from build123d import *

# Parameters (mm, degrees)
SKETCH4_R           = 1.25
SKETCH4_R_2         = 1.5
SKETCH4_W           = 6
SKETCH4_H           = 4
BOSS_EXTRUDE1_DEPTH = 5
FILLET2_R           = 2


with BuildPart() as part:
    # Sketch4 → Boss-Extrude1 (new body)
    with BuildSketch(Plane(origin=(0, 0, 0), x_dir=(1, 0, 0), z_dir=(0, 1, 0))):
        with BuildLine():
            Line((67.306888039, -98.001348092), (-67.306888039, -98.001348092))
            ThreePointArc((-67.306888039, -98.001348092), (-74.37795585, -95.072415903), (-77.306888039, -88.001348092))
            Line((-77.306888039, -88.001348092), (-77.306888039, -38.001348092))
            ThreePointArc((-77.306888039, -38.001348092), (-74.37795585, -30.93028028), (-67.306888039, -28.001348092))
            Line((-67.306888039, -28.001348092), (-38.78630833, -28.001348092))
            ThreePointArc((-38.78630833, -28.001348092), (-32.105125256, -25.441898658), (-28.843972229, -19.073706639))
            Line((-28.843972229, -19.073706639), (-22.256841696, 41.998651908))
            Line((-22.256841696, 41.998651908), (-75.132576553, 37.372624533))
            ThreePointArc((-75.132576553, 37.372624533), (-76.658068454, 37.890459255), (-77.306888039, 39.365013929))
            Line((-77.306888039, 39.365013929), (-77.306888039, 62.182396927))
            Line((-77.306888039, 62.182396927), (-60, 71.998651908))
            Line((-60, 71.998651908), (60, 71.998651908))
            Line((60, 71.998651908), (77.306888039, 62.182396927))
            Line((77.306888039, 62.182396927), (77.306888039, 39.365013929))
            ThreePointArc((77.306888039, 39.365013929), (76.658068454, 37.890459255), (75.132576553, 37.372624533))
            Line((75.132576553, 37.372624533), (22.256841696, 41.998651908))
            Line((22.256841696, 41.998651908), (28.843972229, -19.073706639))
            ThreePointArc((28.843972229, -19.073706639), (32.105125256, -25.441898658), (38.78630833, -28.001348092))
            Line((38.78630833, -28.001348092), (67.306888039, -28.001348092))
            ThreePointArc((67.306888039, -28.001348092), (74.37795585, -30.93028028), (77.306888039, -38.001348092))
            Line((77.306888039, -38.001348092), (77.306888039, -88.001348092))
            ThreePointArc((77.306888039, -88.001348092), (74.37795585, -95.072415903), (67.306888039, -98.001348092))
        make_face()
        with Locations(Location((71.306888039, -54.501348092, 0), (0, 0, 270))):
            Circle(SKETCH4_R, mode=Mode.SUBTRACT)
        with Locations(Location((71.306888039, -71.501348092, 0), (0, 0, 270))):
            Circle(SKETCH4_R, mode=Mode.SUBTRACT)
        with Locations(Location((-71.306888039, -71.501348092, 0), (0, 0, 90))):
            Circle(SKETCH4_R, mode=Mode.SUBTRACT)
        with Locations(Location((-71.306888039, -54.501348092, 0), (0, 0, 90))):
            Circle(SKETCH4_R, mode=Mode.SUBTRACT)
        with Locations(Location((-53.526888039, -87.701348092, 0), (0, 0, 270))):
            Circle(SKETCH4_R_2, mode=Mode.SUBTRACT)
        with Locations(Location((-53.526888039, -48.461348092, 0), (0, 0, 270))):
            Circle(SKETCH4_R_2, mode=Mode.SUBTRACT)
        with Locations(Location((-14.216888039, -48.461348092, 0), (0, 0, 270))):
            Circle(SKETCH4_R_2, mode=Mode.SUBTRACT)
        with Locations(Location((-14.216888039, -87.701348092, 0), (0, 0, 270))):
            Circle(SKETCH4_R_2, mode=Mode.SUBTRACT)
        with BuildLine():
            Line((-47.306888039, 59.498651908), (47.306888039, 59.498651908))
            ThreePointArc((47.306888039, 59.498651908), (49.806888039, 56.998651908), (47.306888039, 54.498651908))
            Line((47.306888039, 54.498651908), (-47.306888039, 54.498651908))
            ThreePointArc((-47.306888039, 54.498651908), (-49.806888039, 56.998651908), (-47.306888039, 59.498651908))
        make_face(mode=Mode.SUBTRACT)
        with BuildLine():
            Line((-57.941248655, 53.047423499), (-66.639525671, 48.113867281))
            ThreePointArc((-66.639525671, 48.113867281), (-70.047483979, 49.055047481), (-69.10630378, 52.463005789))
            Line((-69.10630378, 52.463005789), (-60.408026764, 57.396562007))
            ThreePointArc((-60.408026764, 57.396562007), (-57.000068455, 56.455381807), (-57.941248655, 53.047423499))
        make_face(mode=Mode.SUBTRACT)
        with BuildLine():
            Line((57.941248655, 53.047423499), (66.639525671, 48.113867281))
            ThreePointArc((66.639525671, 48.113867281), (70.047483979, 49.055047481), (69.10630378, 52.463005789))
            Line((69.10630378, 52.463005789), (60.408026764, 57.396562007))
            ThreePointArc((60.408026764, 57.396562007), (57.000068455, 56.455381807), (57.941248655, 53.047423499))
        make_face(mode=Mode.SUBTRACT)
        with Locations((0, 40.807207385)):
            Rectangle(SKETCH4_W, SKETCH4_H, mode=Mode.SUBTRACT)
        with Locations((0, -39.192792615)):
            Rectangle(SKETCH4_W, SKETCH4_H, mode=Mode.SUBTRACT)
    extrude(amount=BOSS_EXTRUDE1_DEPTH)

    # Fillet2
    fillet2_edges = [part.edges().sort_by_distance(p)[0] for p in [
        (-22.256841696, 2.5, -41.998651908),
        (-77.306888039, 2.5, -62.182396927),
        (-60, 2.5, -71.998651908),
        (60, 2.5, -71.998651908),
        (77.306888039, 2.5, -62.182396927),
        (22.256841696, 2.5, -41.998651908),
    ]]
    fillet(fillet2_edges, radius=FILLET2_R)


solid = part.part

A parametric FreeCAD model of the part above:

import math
import FreeCAD as App
import Part
import Sketcher
Q = App.Units.Quantity


def edges_at(feature, points):
    """Names of the edges that pass closest to the given points."""
    edges = feature.Shape.Edges
    near = lambda p: min(range(len(edges)), key=lambda i: edges[i].distToShape(Part.Vertex(*p))[0])
    return sorted({f"Edge{near(p) + 1}" for p in points})


def add_polygon(sketch, points):
    """Adds a closed chain of lines whose ends are joined by coincident constraints."""
    first, n = sketch.GeometryCount, len(points)
    for a, b in zip(points, points[1:] + points[:1]):
        sketch.addGeometry(Part.LineSegment(App.Vector(*a, 0), App.Vector(*b, 0)), False)
    for i in range(n):
        sketch.addConstraint(Sketcher.Constraint("Coincident", first + i, 2, first + (i + 1) % n, 1))

doc = App.newDocument("Part")
body = doc.addObject("PartDesign::Body", "Body")

sketch1 = doc.addObject("Sketcher::SketchObject", "Sketch")
body.addObject(sketch1)
sketch1.AttachmentSupport = (doc.XZ_Plane, [""])
sketch1.MapMode = "FlatFace"
sketch1.addGeometry(Part.LineSegment(App.Vector(-67.3, 98, 0), App.Vector(67.3, 98, 0)), False)
sketch1.addGeometry(Part.ArcOfCircle(Part.Circle(App.Vector(67.3, 88, 0), App.Vector(0, 0, 1), 10), math.radians(0), math.radians(90)), False)
sketch1.addGeometry(Part.LineSegment(App.Vector(77.3, 88, 0), App.Vector(77.3, 38, 0)), False)
sketch1.addGeometry(Part.ArcOfCircle(Part.Circle(App.Vector(67.3, 38, 0), App.Vector(0, 0, 1), 10), math.radians(-90), math.radians(0)), False)
sketch1.addGeometry(Part.LineSegment(App.Vector(67.3, 28, 0), App.Vector(38.8, 28, 0)), False)
sketch1.addGeometry(Part.ArcOfCircle(Part.Circle(App.Vector(38.8, 18, 0), App.Vector(0, 0, 1), 10), math.radians(90), math.radians(174)), False)
sketch1.addGeometry(Part.LineSegment(App.Vector(28.8, 19.1, 0), App.Vector(22.3, -42, 0)), False)
sketch1.addGeometry(Part.LineSegment(App.Vector(22.3, -42, 0), App.Vector(75.1, -37.4, 0)), False)
sketch1.addGeometry(Part.ArcOfCircle(Part.Circle(App.Vector(75.3, -39.4, 0), App.Vector(0, 0, 1), 2), math.radians(0), math.radians(95)), False)
sketch1.addGeometry(Part.LineSegment(App.Vector(77.3, -39.4, 0), App.Vector(77.3, -62.2, 0)), False)
sketch1.addGeometry(Part.LineSegment(App.Vector(77.3, -62.2, 0), App.Vector(60, -72, 0)), False)
sketch1.addGeometry(Part.LineSegment(App.Vector(60, -72, 0), App.Vector(-60, -72, 0)), False)
sketch1.addGeometry(Part.LineSegment(App.Vector(-60, -72, 0), App.Vector(-77.3, -62.2, 0)), False)
sketch1.addGeometry(Part.LineSegment(App.Vector(-77.3, -62.2, 0), App.Vector(-77.3, -39.4, 0)), False)
sketch1.addGeometry(Part.ArcOfCircle(Part.Circle(App.Vector(-75.3, -39.4, 0), App.Vector(0, 0, 1), 2), math.radians(85), math.radians(180)), False)
sketch1.addGeometry(Part.LineSegment(App.Vector(-75.1, -37.4, 0), App.Vector(-22.3, -42, 0)), False)
sketch1.addGeometry(Part.LineSegment(App.Vector(-22.3, -42, 0), App.Vector(-28.8, 19.1, 0)), False)
sketch1.addGeometry(Part.ArcOfCircle(Part.Circle(App.Vector(-38.8, 18, 0), App.Vector(0, 0, 1), 10), math.radians(6), math.radians(90)), False)
sketch1.addGeometry(Part.LineSegment(App.Vector(-38.8, 28, 0), App.Vector(-67.3, 28, 0)), False)
sketch1.addGeometry(Part.ArcOfCircle(Part.Circle(App.Vector(-67.3, 38, 0), App.Vector(0, 0, 1), 10), math.radians(-180), math.radians(-90)), False)
sketch1.addGeometry(Part.LineSegment(App.Vector(-77.3, 38, 0), App.Vector(-77.3, 88, 0)), False)
sketch1.addGeometry(Part.ArcOfCircle(Part.Circle(App.Vector(-67.3, 88, 0), App.Vector(0, 0, 1), 10), math.radians(90), math.radians(180)), False)
sketch1.addGeometry(Part.Circle(App.Vector(71.3, 71.5, 0), App.Vector(0, 0, 1), 1.2), False)
sketch1.addGeometry(Part.Circle(App.Vector(71.3, 54.5, 0), App.Vector(0, 0, 1), 1.2), False)
sketch1.addGeometry(Part.Circle(App.Vector(-14.2, 87.7, 0), App.Vector(0, 0, 1), 1.5), False)
sketch1.addGeometry(Part.Circle(App.Vector(-53.5, 87.7, 0), App.Vector(0, 0, 1), 1.5), False)
sketch1.addGeometry(Part.Circle(App.Vector(-71.3, 71.5, 0), App.Vector(0, 0, 1), 1.2), False)
sketch1.addGeometry(Part.Circle(App.Vector(-71.3, 54.5, 0), App.Vector(0, 0, 1), 1.2), False)
sketch1.addGeometry(Part.Circle(App.Vector(-14.2, 48.5, 0), App.Vector(0, 0, 1), 1.5), False)
add_polygon(sketch1, [(-3, 41.2), (-3, 37.2), (3, 37.2), (3, 41.2)])
sketch1.addGeometry(Part.Circle(App.Vector(-53.5, 48.5, 0), App.Vector(0, 0, 1), 1.5), False)
sketch1.addGeometry(Part.ArcOfCircle(Part.Circle(App.Vector(59.2, -55.2, 0), App.Vector(0, 0, 1), 2.5), math.radians(120), math.radians(300)), False)
sketch1.addGeometry(Part.LineSegment(App.Vector(60.4, -57.4, 0), App.Vector(69.1, -52.5, 0)), False)
sketch1.addGeometry(Part.ArcOfCircle(Part.Circle(App.Vector(67.9, -50.3, 0), App.Vector(0, 0, 1), 2.5), math.radians(-60), math.radians(120)), False)
sketch1.addGeometry(Part.LineSegment(App.Vector(66.6, -48.1, 0), App.Vector(57.9, -53, 0)), False)
add_polygon(sketch1, [(-3, -38.8), (-3, -42.8), (3, -42.8), (3, -38.8)])
sketch1.addGeometry(Part.LineSegment(App.Vector(-47.3, -59.5, 0), App.Vector(47.3, -59.5, 0)), False)
sketch1.addGeometry(Part.ArcOfCircle(Part.Circle(App.Vector(47.3, -57, 0), App.Vector(0, 0, 1), 2.5), math.radians(-90), math.radians(90)), False)
sketch1.addGeometry(Part.LineSegment(App.Vector(47.3, -54.5, 0), App.Vector(-47.3, -54.5, 0)), False)
sketch1.addGeometry(Part.ArcOfCircle(Part.Circle(App.Vector(-47.3, -57, 0), App.Vector(0, 0, 1), 2.5), math.radians(90), math.radians(270)), False)
sketch1.addGeometry(Part.LineSegment(App.Vector(-57.9, -53, 0), App.Vector(-66.6, -48.1, 0)), False)
sketch1.addGeometry(Part.ArcOfCircle(Part.Circle(App.Vector(-67.9, -50.3, 0), App.Vector(0, 0, 1), 2.5), math.radians(60), math.radians(240)), False)
sketch1.addGeometry(Part.LineSegment(App.Vector(-69.1, -52.5, 0), App.Vector(-60.4, -57.4, 0)), False)
sketch1.addGeometry(Part.ArcOfCircle(Part.Circle(App.Vector(-59.2, -55.2, 0), App.Vector(0, 0, 1), 2.5), math.radians(-120), math.radians(60)), False)
sketch1.addConstraint([
    Sketcher.Constraint("Tangent", 0, 2, 1, 2),
    Sketcher.Constraint("Tangent", 1, 1, 2, 1),
    Sketcher.Constraint("Tangent", 2, 2, 3, 2),
    Sketcher.Constraint("Tangent", 3, 1, 4, 1),
    Sketcher.Constraint("Tangent", 4, 2, 5, 1),
    Sketcher.Constraint("Tangent", 5, 2, 6, 1),
    Sketcher.Constraint("Coincident", 6, 2, 7, 1),
    Sketcher.Constraint("Tangent", 7, 2, 8, 2),
    Sketcher.Constraint("Tangent", 8, 1, 9, 1),
    Sketcher.Constraint("Coincident", 9, 2, 10, 1),
    Sketcher.Constraint("Coincident", 10, 2, 11, 1),
    Sketcher.Constraint("Coincident", 11, 2, 12, 1),
    Sketcher.Constraint("Coincident", 12, 2, 13, 1),
    Sketcher.Constraint("Tangent", 13, 2, 14, 2),
    Sketcher.Constraint("Tangent", 14, 1, 15, 1),
    Sketcher.Constraint("Coincident", 15, 2, 16, 1),
    Sketcher.Constraint("Tangent", 16, 2, 17, 1),
    Sketcher.Constraint("Tangent", 17, 2, 18, 1),
    Sketcher.Constraint("Tangent", 18, 2, 19, 2),
    Sketcher.Constraint("Tangent", 19, 1, 20, 1),
    Sketcher.Constraint("Tangent", 20, 2, 21, 2),
    Sketcher.Constraint("Tangent", 21, 1, 0, 1),
    Sketcher.Constraint("Tangent", 34, 2, 35, 1),
    Sketcher.Constraint("Tangent", 35, 2, 36, 1),
    Sketcher.Constraint("Tangent", 36, 2, 37, 1),
    Sketcher.Constraint("Tangent", 37, 2, 34, 1),
    Sketcher.Constraint("Tangent", 42, 2, 43, 1),
    Sketcher.Constraint("Tangent", 43, 2, 44, 1),
    Sketcher.Constraint("Tangent", 44, 2, 45, 1),
    Sketcher.Constraint("Tangent", 45, 2, 42, 1),
    Sketcher.Constraint("Tangent", 46, 2, 47, 1),
    Sketcher.Constraint("Tangent", 47, 2, 48, 1),
    Sketcher.Constraint("Tangent", 48, 2, 49, 1),
    Sketcher.Constraint("Tangent", 49, 2, 46, 1),
    Sketcher.Constraint("Horizontal", 0),
    Sketcher.Constraint("Vertical", 2),
    Sketcher.Constraint("Horizontal", 4),
    Sketcher.Constraint("Vertical", 9),
    Sketcher.Constraint("Horizontal", 11),
    Sketcher.Constraint("Vertical", 13),
    Sketcher.Constraint("Horizontal", 18),
    Sketcher.Constraint("Vertical", 20),
    Sketcher.Constraint("Vertical", 29),
    Sketcher.Constraint("Horizontal", 30),
    Sketcher.Constraint("Vertical", 31),
    Sketcher.Constraint("Horizontal", 32),
    Sketcher.Constraint("Vertical", 38),
    Sketcher.Constraint("Horizontal", 39),
    Sketcher.Constraint("Vertical", 40),
    Sketcher.Constraint("Horizontal", 41),
    Sketcher.Constraint("Horizontal", 42),
    Sketcher.Constraint("Horizontal", 44),
    Sketcher.Constraint("Equal", 1, 3),
    Sketcher.Constraint("Equal", 3, 5),
    Sketcher.Constraint("Equal", 8, 14),
    Sketcher.Constraint("Equal", 5, 17),
    Sketcher.Constraint("Equal", 17, 19),
    Sketcher.Constraint("Equal", 19, 21),
    Sketcher.Constraint("Equal", 22, 23),
    Sketcher.Constraint("Equal", 24, 25),
    Sketcher.Constraint("Equal", 23, 26),
    Sketcher.Constraint("Equal", 26, 27),
    Sketcher.Constraint("Equal", 25, 28),
    Sketcher.Constraint("Equal", 28, 33),
    Sketcher.Constraint("Equal", 34, 36),
    Sketcher.Constraint("Equal", 36, 43),
    Sketcher.Constraint("Equal", 45, 47),
    Sketcher.Constraint("Equal", 47, 49),
    Sketcher.Constraint("Symmetric", 8, 3, 14, 3, -2),
    Sketcher.Constraint("Symmetric", 5, 3, 17, 3, -2),
    Sketcher.Constraint("Symmetric", 22, 3, 26, 3, -2),
    Sketcher.Constraint("Symmetric", 23, 3, 27, 3, -2),
    Sketcher.Constraint("Symmetric", 36, 3, 47, 3, -2),
    Sketcher.Constraint("Symmetric", 34, 3, 49, 3, -2),
    Sketcher.Constraint("Symmetric", 6, 2, 15, 2, -2),
    Sketcher.Constraint("Parallel", 10, 35),
    Sketcher.Constraint("Parallel", 12, 46),
    Sketcher.Constraint("Horizontal", 24, 3, 25, 3),
    Sketcher.Constraint("Horizontal", 28, 3, 33, 3),
    Sketcher.Constraint("Horizontal", 9, 2, 12, 2),
    Sketcher.Constraint("Vertical", 22, 3, 23, 3),
    Sketcher.Constraint("Vertical", 24, 3, 28, 3),
    Sketcher.Constraint("Vertical", 25, 3, 33, 3),
    Sketcher.Constraint("Vertical", 2, 2, 8, 1),
    Sketcher.Constraint("Vertical", 13, 2, 19, 1),
    Sketcher.Constraint("Vertical", 32, 2, 38, 2),
    Sketcher.Constraint("Vertical", 31, 2, 39, 2),
    Sketcher.Constraint("Equal", 31, 38),
    Sketcher.Constraint("Diameter", 24, 3.0),
    Sketcher.Constraint("Radius", 1, 10.0),
    Sketcher.Constraint("Radius", 8, 2.0),
    Sketcher.Constraint("Diameter", 22, 2.5),
    Sketcher.Constraint("Radius", 34, 2.5),
    Sketcher.Constraint("DistanceX", 11, 2, 11, 1, 120.0),
    Sketcher.Constraint("DistanceX", 30, 1, 30, 2, 6.0),
    Sketcher.Constraint("DistanceY", 2, 2, 2, 1, 50.0),
    Sketcher.Constraint("DistanceY", 29, 2, 29, 1, 4.0),
    Sketcher.Constraint("Angle", 7, Q("5 deg")),
    Sketcher.Constraint("Distance", 35, 10.0),
    Sketcher.Constraint("DistanceX", 29, 2, -1, 1, 3.0),
    Sketcher.Constraint("DistanceX", 4, 2, 4, 1, 28.52058),
    Sketcher.Constraint("Distance", 6, 61.426568),
    Sketcher.Constraint("Distance", 7, 53.077712),
    Sketcher.Constraint("DistanceX", 0, 1, 0, 2, 134.613776),
    Sketcher.Constraint("DistanceX", 42, 1, 42, 2, 94.613776),
    Sketcher.Constraint("DistanceY", 9, 2, 9, 1, 22.817383),
    Sketcher.Constraint("DistanceY", -1, 1, 1, 3, 88.001348),
    Sketcher.Constraint("DistanceX", -1, 1, 22, 3, 71.306888),
    Sketcher.Constraint("DistanceY", -1, 1, 22, 3, 71.501348),
    Sketcher.Constraint("DistanceY", -1, 1, 23, 3, 54.501348),
    Sketcher.Constraint("DistanceX", 24, 3, -1, 1, 14.216888),
    Sketcher.Constraint("DistanceY", -1, 1, 24, 3, 87.701348),
    Sketcher.Constraint("DistanceX", 25, 3, -1, 1, 53.526888),
    Sketcher.Constraint("DistanceY", -1, 1, 28, 3, 48.461348),
    Sketcher.Constraint("DistanceX", -1, 1, 43, 3, 47.306888),
    Sketcher.Constraint("DistanceY", 43, 3, -1, 1, 56.998652),
    Sketcher.Constraint("DistanceY", 10, 2, -1, 1, 71.998652),
    Sketcher.Constraint("DistanceX", -1, 1, 37, 2, 57.941249),
    Sketcher.Constraint("DistanceY", 34, 3, -1, 1, 55.221993),
    Sketcher.Constraint("DistanceY", -1, 1, 29, 2, 37.192793),
    Sketcher.Constraint("DistanceY", 38, 2, -1, 1, 42.807207),
])
pad1 = doc.addObject("PartDesign::Pad", "Pad")
body.addObject(pad1)
pad1.Profile = sketch1
pad1.Length = 5
pad1.Reversed = True
doc.recompute()

fillet = doc.addObject("PartDesign::Fillet", "Fillet")
body.addObject(fillet)
fillet.Base = (pad1, edges_at(pad1, [
    (-22.257, 2.5, -41.999),
    (-77.307, 2.5, -62.182),
    (-60, 2.5, -71.999),
    (60, 2.5, -71.999),
    (77.307, 2.5, -62.182),
    (22.257, 2.5, -41.999),
]))
fillet.Radius = 2

doc.recompute()
